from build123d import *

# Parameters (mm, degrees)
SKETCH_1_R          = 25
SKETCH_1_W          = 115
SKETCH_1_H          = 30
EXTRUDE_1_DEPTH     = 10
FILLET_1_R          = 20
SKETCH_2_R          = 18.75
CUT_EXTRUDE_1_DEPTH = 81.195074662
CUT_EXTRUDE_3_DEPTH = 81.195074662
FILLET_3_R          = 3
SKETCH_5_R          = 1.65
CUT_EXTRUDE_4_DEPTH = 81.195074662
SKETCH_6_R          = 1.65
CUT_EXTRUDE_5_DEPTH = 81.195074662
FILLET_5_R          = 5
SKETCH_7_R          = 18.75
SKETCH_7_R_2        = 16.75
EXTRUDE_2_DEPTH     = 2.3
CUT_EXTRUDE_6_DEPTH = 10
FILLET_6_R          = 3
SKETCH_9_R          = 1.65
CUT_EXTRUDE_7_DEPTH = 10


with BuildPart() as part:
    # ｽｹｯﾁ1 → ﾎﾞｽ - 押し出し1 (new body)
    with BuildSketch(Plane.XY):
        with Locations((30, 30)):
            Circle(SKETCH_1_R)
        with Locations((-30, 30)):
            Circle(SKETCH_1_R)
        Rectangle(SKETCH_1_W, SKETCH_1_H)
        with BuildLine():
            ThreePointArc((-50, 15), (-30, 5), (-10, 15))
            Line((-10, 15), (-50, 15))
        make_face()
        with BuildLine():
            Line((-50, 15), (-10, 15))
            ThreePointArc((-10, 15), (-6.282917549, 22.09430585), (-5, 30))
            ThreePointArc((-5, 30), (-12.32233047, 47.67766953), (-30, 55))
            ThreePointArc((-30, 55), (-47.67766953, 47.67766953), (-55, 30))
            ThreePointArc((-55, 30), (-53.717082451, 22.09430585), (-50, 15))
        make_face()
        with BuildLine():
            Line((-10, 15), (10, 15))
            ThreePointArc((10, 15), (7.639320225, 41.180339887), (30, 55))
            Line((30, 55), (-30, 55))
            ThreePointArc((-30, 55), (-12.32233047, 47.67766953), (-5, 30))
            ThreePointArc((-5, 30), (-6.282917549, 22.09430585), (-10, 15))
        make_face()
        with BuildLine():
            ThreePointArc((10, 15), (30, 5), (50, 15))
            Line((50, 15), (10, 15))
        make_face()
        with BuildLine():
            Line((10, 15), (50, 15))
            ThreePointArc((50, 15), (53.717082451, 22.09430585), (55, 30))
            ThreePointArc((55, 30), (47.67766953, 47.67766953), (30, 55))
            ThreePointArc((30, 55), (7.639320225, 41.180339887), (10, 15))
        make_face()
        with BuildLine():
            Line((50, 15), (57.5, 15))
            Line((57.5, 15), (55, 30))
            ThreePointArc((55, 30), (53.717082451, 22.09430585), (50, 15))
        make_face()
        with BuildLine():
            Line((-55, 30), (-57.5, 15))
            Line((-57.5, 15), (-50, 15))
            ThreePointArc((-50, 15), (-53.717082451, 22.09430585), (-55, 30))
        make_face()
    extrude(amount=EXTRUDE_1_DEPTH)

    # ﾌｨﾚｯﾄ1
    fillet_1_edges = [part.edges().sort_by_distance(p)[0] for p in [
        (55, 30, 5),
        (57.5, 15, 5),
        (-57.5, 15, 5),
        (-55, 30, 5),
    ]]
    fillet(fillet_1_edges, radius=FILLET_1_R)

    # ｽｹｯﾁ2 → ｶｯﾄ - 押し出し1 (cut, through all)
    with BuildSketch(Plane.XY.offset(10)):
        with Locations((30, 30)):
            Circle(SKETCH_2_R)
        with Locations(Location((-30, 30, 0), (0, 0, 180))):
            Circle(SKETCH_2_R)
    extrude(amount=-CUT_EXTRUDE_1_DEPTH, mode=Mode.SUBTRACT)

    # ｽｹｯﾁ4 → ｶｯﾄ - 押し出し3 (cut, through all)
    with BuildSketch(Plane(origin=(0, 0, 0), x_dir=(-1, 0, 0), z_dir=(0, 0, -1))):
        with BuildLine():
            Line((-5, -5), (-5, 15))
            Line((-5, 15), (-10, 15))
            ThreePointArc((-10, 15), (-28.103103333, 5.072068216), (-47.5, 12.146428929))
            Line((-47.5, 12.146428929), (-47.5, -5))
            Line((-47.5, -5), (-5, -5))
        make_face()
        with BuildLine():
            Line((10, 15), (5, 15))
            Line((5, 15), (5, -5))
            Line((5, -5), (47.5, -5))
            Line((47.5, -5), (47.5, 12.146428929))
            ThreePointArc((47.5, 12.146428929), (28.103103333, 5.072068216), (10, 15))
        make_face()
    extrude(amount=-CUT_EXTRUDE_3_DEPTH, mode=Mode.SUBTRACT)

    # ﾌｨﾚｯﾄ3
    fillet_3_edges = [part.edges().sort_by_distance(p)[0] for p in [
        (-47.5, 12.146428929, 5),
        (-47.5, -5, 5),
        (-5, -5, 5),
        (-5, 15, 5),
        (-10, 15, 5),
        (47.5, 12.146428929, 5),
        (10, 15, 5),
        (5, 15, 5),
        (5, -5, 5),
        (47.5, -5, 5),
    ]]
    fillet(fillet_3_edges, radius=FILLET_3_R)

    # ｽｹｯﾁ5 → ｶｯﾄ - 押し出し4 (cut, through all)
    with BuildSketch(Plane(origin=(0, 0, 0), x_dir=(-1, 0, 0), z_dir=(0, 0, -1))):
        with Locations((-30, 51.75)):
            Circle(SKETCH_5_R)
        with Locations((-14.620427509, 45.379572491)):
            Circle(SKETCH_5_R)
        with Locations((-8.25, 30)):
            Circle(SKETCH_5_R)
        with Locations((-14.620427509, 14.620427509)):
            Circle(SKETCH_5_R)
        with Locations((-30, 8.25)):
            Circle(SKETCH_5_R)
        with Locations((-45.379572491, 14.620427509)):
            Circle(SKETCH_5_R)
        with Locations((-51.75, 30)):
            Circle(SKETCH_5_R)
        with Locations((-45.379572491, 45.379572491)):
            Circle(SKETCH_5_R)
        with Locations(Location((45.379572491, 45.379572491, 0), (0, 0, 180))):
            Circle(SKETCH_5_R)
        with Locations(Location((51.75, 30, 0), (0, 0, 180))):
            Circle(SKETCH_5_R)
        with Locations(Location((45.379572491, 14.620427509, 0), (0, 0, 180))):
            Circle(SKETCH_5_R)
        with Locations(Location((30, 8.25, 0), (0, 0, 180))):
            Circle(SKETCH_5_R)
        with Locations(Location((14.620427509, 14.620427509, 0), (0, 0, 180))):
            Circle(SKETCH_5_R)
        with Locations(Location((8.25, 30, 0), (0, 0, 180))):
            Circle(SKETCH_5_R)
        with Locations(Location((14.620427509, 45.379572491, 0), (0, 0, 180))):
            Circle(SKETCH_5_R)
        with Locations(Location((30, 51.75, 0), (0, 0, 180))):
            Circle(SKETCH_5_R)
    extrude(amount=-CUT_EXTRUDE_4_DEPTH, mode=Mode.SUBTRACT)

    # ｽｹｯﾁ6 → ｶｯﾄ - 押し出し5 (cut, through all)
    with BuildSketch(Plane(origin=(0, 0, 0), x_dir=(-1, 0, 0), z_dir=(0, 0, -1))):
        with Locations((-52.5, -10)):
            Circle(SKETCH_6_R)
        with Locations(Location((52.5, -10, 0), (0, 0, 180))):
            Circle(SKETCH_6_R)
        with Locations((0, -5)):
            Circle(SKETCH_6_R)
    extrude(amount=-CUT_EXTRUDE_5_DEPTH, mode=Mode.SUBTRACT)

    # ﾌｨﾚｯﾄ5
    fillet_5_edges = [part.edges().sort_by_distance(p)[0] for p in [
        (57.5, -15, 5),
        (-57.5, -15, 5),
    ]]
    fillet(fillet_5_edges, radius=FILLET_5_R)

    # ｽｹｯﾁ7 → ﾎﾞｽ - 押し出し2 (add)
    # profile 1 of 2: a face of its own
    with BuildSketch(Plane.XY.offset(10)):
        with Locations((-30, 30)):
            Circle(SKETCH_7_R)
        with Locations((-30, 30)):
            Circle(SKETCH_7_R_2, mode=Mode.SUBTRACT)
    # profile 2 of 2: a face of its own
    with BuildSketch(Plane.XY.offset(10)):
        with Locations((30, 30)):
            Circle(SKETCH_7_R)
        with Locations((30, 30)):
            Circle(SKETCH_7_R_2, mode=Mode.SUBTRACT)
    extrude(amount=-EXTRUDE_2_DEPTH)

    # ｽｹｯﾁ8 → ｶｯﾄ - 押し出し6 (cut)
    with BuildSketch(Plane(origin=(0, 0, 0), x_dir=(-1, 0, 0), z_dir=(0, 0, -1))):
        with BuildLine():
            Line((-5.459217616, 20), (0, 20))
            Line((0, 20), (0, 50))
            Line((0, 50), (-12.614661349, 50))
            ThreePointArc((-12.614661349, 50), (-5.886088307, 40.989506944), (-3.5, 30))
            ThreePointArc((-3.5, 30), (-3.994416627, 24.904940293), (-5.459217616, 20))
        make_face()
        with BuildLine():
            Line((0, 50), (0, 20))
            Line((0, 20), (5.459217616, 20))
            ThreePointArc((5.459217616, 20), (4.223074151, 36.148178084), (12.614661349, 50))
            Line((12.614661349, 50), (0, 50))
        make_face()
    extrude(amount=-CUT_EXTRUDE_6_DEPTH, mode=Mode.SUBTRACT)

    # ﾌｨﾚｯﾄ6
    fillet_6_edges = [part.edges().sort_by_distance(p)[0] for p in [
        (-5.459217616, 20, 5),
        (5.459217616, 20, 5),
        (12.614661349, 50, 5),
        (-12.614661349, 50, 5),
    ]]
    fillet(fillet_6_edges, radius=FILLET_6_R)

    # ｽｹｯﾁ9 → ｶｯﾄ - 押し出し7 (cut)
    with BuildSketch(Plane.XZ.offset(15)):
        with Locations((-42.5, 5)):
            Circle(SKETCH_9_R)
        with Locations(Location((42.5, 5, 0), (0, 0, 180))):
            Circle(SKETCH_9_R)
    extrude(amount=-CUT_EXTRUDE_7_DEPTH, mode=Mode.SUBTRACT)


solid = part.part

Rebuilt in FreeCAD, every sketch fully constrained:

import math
import FreeCAD as App
import Part
import Sketcher

V = App.Vector
Q = App.Units.Quantity


def edges_at(feature, points):
    """Names of the edges that pass closest to the given points."""
    edges = feature.Shape.Edges
    near = lambda p: min(range(len(edges)), key=lambda i: edges[i].distToShape(Part.Vertex(*p))[0])
    return sorted({f"Edge{near(p) + 1}" for p in points})

doc = App.newDocument("Part")
body = doc.addObject("PartDesign::Body", "Body")

sketch1 = body.newObject("Sketcher::SketchObject", "Sketch")
sketch1.AttachmentSupport = (doc.getObject("XY_Plane"), [""])
sketch1.MapMode = "FlatFace"
sketch1.addGeometry([
    Part.ArcOfCircle(Part.Circle(V(30, 30, 0), V(0, 0, 1), 25), math.radians(0), math.radians(90)),
    Part.LineSegment(V(30, 55, 0), V(-30, 55, 0)),
    Part.ArcOfCircle(Part.Circle(V(-30, 30, 0), V(0, 0, 1), 25), math.radians(90), math.radians(180)),
    Part.LineSegment(V(-55, 30, 0), V(-58, 15, 0)),
    Part.LineSegment(V(-58, 15, 0), V(-58, -15, 0)),
    Part.LineSegment(V(-58, -15, 0), V(58, -15, 0)),
    Part.LineSegment(V(58, -15, 0), V(58, 15, 0)),
    Part.LineSegment(V(58, 15, 0), V(55, 30, 0)),
], False)
sketch1.addConstraint([
    Sketcher.Constraint("Tangent", 0, 2, 1, 1),
    Sketcher.Constraint("Tangent", 1, 2, 2, 1),
    Sketcher.Constraint("Coincident", 2, 2, 3, 1),
    Sketcher.Constraint("Coincident", 3, 2, 4, 1),
    Sketcher.Constraint("Coincident", 4, 2, 5, 1),
    Sketcher.Constraint("Coincident", 5, 2, 6, 1),
    Sketcher.Constraint("Coincident", 6, 2, 7, 1),
    Sketcher.Constraint("Coincident", 7, 2, 0, 1),
    Sketcher.Constraint("Horizontal", 1),
    Sketcher.Constraint("Vertical", 4),
    Sketcher.Constraint("Horizontal", 5),
    Sketcher.Constraint("Vertical", 6),
    Sketcher.Constraint("Equal", 0, 2),
    Sketcher.Constraint("Symmetric", 3, 2, 5, 2, -1, 1),
    Sketcher.Constraint("Symmetric", 2, 2, 7, 2, -2),
    Sketcher.Constraint("Horizontal", 0, 3, 2, 2),
    Sketcher.Constraint("Horizontal", 3, 2, 6, 2),
    Sketcher.Constraint("Radius", 0, Q("25 mm")),
    Sketcher.Constraint("DistanceX", 1, 2, 1, 1, Q("60 mm")),
    Sketcher.Constraint("DistanceX", 5, 1, 5, 2, Q("115 mm")),
    Sketcher.Constraint("DistanceY", 4, 2, 4, 1, Q("30 mm")),
    Sketcher.Constraint("DistanceY", -1, 1, 0, 3, Q("30 mm")),
])
pad1 = body.newObject("PartDesign::Pad", "Pad")
pad1.Profile = sketch1
pad1.Length = 10
doc.recompute()

fillet = body.newObject("PartDesign::Fillet", "Fillet")
fillet.Base = (pad1, edges_at(pad1, [
    (55, 30, 5),
    (57.5, 15, 5),
    (-57.5, 15, 5),
    (-55, 30, 5),
]))
fillet.Radius = 20

sketch2 = body.newObject("Sketcher::SketchObject", "Sketch001")
sketch2.AttachmentSupport = (doc.getObject("XY_Plane"), [""])
sketch2.MapMode = "FlatFace"
sketch2.AttachmentOffset = App.Placement(V(0, 0, 10), App.Rotation())
sketch2.addGeometry([
    Part.Circle(V(30, 30, 0), V(0, 0, 1), 19),
    Part.Circle(V(-30, 30, 0), V(0, 0, 1), 19),
], False)
sketch2.addConstraint([
    Sketcher.Constraint("Equal", 0, 1),
    Sketcher.Constraint("Symmetric", 0, 3, 1, 3, -2),
    Sketcher.Constraint("Diameter", 0, Q("37.5 mm")),
    Sketcher.Constraint("DistanceX", -1, 1, 0, 3, Q("30 mm")),
    Sketcher.Constraint("DistanceY", -1, 1, 0, 3, Q("30 mm")),
])
pocket1 = body.newObject("PartDesign::Pocket", "Pocket")
pocket1.Profile = sketch2
pocket1.Type = "ThroughAll"

sketch3 = body.newObject("Sketcher::SketchObject", "Sketch002")
sketch3.AttachmentSupport = (doc.getObject("XY_Plane"), [""])
sketch3.MapMode = "FlatFace"
sketch3.addGeometry([
    Part.LineSegment(V(5, -5, 0), V(5, 15, 0)),
    Part.LineSegment(V(5, 15, 0), V(10, 15, 0)),
    Part.ArcOfCircle(Part.Circle(V(30, 30, 0), V(0, 0, 1), 25), math.radians(-143), math.radians(-46)),
    Part.LineSegment(V(48, 12, 0), V(48, -5, 0)),
    Part.LineSegment(V(48, -5, 0), V(5, -5, 0)),
    Part.LineSegment(V(-10, 15, 0), V(-5, 15, 0)),
    Part.LineSegment(V(-5, 15, 0), V(-5, -5, 0)),
    Part.LineSegment(V(-5, -5, 0), V(-48, -5, 0)),
    Part.LineSegment(V(-48, -5, 0), V(-48, 12, 0)),
    Part.ArcOfCircle(Part.Circle(V(-30, 30, 0), V(0, 0, 1), 25), math.radians(-134), math.radians(-37)),
], False)
sketch3.addConstraint([
    Sketcher.Constraint("Coincident", 0, 2, 1, 1),
    Sketcher.Constraint("Coincident", 1, 2, 2, 1),
    Sketcher.Constraint("Coincident", 2, 2, 3, 1),
    Sketcher.Constraint("Coincident", 3, 2, 4, 1),
    Sketcher.Constraint("Coincident", 4, 2, 0, 1),
    Sketcher.Constraint("Coincident", 5, 2, 6, 1),
    Sketcher.Constraint("Coincident", 6, 2, 7, 1),
    Sketcher.Constraint("Coincident", 7, 2, 8, 1),
    Sketcher.Constraint("Coincident", 8, 2, 9, 1),
    Sketcher.Constraint("Coincident", 9, 2, 5, 1),
    Sketcher.Constraint("Vertical", 0),
    Sketcher.Constraint("Horizontal", 1),
    Sketcher.Constraint("Vertical", 3),
    Sketcher.Constraint("Horizontal", 4),
    Sketcher.Constraint("Horizontal", 5),
    Sketcher.Constraint("Vertical", 6),
    Sketcher.Constraint("Horizontal", 7),
    Sketcher.Constraint("Vertical", 8),
    Sketcher.Constraint("Equal", 2, 9),
    Sketcher.Constraint("Symmetric", 2, 3, 9, 3, -2),
    Sketcher.Constraint("Symmetric", 0, 2, 5, 2, -2),
    Sketcher.Constraint("Symmetric", 3, 2, 7, 2, -2),
    Sketcher.Constraint("Radius", 2, Q("25 mm")),
    Sketcher.Constraint("DistanceX", 1, 1, 1, 2, Q("5 mm")),
    Sketcher.Constraint("DistanceY", 0, 1, 0, 2, Q("20 mm")),
    Sketcher.Constraint("DistanceX", 4, 2, 4, 1, Q("42.5 mm")),
    Sketcher.Constraint("DistanceX", -1, 1, 2, 3, Q("30 mm")),
    Sketcher.Constraint("DistanceY", -1, 1, 2, 3, Q("30 mm")),
    Sketcher.Constraint("DistanceX", -1, 1, 0, 2, Q("5 mm")),
])
pocket2 = body.newObject("PartDesign::Pocket", "Pocket001")
pocket2.Profile = sketch3
pocket2.Type = "ThroughAll"
pocket2.Reversed = True
doc.recompute()

fillet2 = body.newObject("PartDesign::Fillet", "Fillet001")
fillet2.Base = (pocket2, edges_at(pocket2, [
    (-47.5, 12.146, 5),
    (-47.5, -5, 5),
    (-5, -5, 5),
    (-5, 15, 5),
    (-10, 15, 5),
    (47.5, 12.146, 5),
    (10, 15, 5),
    (5, 15, 5),
    (5, -5, 5),
    (47.5, -5, 5),
]))
fillet2.Radius = 3

sketch4 = body.newObject("Sketcher::SketchObject", "Sketch003")
sketch4.AttachmentSupport = (doc.getObject("XY_Plane"), [""])
sketch4.MapMode = "FlatFace"
sketch4.addGeometry([
    Part.Circle(V(30, 51.8, 0), V(0, 0, 1), 1.6),
    Part.Circle(V(14.6, 45.4, 0), V(0, 0, 1), 1.6),
    Part.Circle(V(8.2, 30, 0), V(0, 0, 1), 1.6),
    Part.Circle(V(14.6, 14.6, 0), V(0, 0, 1), 1.6),
    Part.Circle(V(30, 8.2, 0), V(0, 0, 1), 1.6),
    Part.Circle(V(45.4, 14.6, 0), V(0, 0, 1), 1.6),
    Part.Circle(V(51.8, 30, 0), V(0, 0, 1), 1.6),
    Part.Circle(V(45.4, 45.4, 0), V(0, 0, 1), 1.6),
    Part.Circle(V(-45.4, 45.4, 0), V(0, 0, 1), 1.6),
    Part.Circle(V(-51.8, 30, 0), V(0, 0, 1), 1.6),
    Part.Circle(V(-45.4, 14.6, 0), V(0, 0, 1), 1.6),
    Part.Circle(V(-30, 8.2, 0), V(0, 0, 1), 1.6),
    Part.Circle(V(-14.6, 14.6, 0), V(0, 0, 1), 1.6),
    Part.Circle(V(-8.2, 30, 0), V(0, 0, 1), 1.6),
    Part.Circle(V(-14.6, 45.4, 0), V(0, 0, 1), 1.6),
    Part.Circle(V(-30, 51.8, 0), V(0, 0, 1), 1.6),
], False)
sketch4.addConstraint([
    Sketcher.Constraint("Equal", 0, 1),
    Sketcher.Constraint("Equal", 1, 2),
    Sketcher.Constraint("Equal", 2, 3),
    Sketcher.Constraint("Equal", 3, 4),
    Sketcher.Constraint("Equal", 4, 5),
    Sketcher.Constraint("Equal", 5, 6),
    Sketcher.Constraint("Equal", 6, 7),
    Sketcher.Constraint("Equal", 7, 8),
    Sketcher.Constraint("Equal", 8, 9),
    Sketcher.Constraint("Equal", 9, 10),
    Sketcher.Constraint("Equal", 10, 11),
    Sketcher.Constraint("Equal", 11, 12),
    Sketcher.Constraint("Equal", 12, 13),
    Sketcher.Constraint("Equal", 13, 14),
    Sketcher.Constraint("Equal", 14, 15),
    Sketcher.Constraint("Symmetric", 7, 3, 8, 3, -2),
    Sketcher.Constraint("Symmetric", 6, 3, 9, 3, -2),
    Sketcher.Constraint("Symmetric", 5, 3, 10, 3, -2),
    Sketcher.Constraint("Symmetric", 4, 3, 11, 3, -2),
    Sketcher.Constraint("Symmetric", 3, 3, 12, 3, -2),
    Sketcher.Constraint("Symmetric", 2, 3, 13, 3, -2),
    Sketcher.Constraint("Symmetric", 1, 3, 14, 3, -2),
    Sketcher.Constraint("Symmetric", 0, 3, 15, 3, -2),
    Sketcher.Constraint("Horizontal", 3, 3, 5, 3),
    Sketcher.Constraint("Horizontal", 2, 3, 6, 3),
    Sketcher.Constraint("Horizontal", 1, 3, 7, 3),
    Sketcher.Constraint("Vertical", 1, 3, 3, 3),
    Sketcher.Constraint("Vertical", 0, 3, 4, 3),
    Sketcher.Constraint("Vertical", 5, 3, 7, 3),
    Sketcher.Constraint("Diameter", 0, Q("3.3 mm")),
    Sketcher.Constraint("DistanceX", -1, 1, 0, 3, Q("30 mm")),
    Sketcher.Constraint("DistanceY", -1, 1, 2, 3, Q("30 mm")),
    Sketcher.Constraint("DistanceX", 8, 3, 1, 3, Q("60 mm")),
    Sketcher.Constraint("DistanceX", 9, 3, 2, 3, Q("60 mm")),
    Sketcher.Constraint("DistanceY", 4, 3, 0, 3, Q("43.5 mm")),
    Sketcher.Constraint("DistanceX", 13, 3, 2, 3, Q("16.5 mm")),
    Sketcher.Constraint("DistanceY", -1, 1, 0, 3, Q("51.75 mm")),
    Sketcher.Constraint("DistanceX", -1, 1, 1, 3, Q("14.620428 mm")),
    Sketcher.Constraint("DistanceY", -1, 1, 1, 3, Q("45.379572 mm")),
    Sketcher.Constraint("DistanceY", -1, 1, 3, 3, Q("14.620428 mm")),
])
pocket3 = body.newObject("PartDesign::Pocket", "Pocket002")
pocket3.Profile = sketch4
pocket3.Type = "ThroughAll"
pocket3.Reversed = True

sketch5 = body.newObject("Sketcher::SketchObject", "Sketch004")
sketch5.AttachmentSupport = (doc.getObject("XY_Plane"), [""])
sketch5.MapMode = "FlatFace"
sketch5.addGeometry([
    Part.Circle(V(52.5, -10, 0), V(0, 0, 1), 1.6),
    Part.Circle(V(-52.5, -10, 0), V(0, 0, 1), 1.6),
    Part.Circle(V(0, -5, 0), V(0, 0, 1), 1.6),
], False)
sketch5.addConstraint([
    Sketcher.Constraint("Equal", 0, 1),
    Sketcher.Constraint("Equal", 1, 2),
    Sketcher.Constraint("Symmetric", 0, 3, 1, 3, -2),
    Sketcher.Constraint("PointOnObject", 2, 3, -2),
    Sketcher.Constraint("Diameter", 0, Q("3.3 mm")),
    Sketcher.Constraint("DistanceY", 0, 3, -1, 1, Q("10 mm")),
    Sketcher.Constraint("DistanceY", 2, 3, -1, 1, Q("5 mm")),
    Sketcher.Constraint("DistanceX", 1, 3, 0, 3, Q("105 mm")),
])
pocket4 = body.newObject("PartDesign::Pocket", "Pocket003")
pocket4.Profile = sketch5
pocket4.Type = "ThroughAll"
pocket4.Reversed = True
doc.recompute()

fillet3 = body.newObject("PartDesign::Fillet", "Fillet002")
fillet3.Base = (pocket4, edges_at(pocket4, [(57.5, -15, 5), (-57.5, -15, 5)]))
fillet3.Radius = 5

sketch6 = body.newObject("Sketcher::SketchObject", "Sketch005")
sketch6.AttachmentSupport = (doc.getObject("XY_Plane"), [""])
sketch6.MapMode = "FlatFace"
sketch6.AttachmentOffset = App.Placement(V(0, 0, 10), App.Rotation())
sketch6.addGeometry([
    Part.Circle(V(-30, 30, 0), V(0, 0, 1), 19),
    Part.Circle(V(-30, 30, 0), V(0, 0, 1), 17),
    Part.Circle(V(30, 30, 0), V(0, 0, 1), 19),
    Part.Circle(V(30, 30, 0), V(0, 0, 1), 17),
], False)
sketch6.addConstraint([
    Sketcher.Constraint("Coincident", 1, 3, 0, 3),
    Sketcher.Constraint("Coincident", 3, 3, 2, 3),
    Sketcher.Constraint("Equal", 0, 2),
    Sketcher.Constraint("Equal", 1, 3),
    Sketcher.Constraint("Symmetric", 0, 3, 2, 3, -2),
    Sketcher.Constraint("Diameter", 0, Q("37.5 mm")),
    Sketcher.Constraint("Diameter", 1, Q("33.5 mm")),
    Sketcher.Constraint("DistanceX", 0, 3, -1, 1, Q("30 mm")),
    Sketcher.Constraint("DistanceY", -1, 1, 0, 3, Q("30 mm")),
])
pad2 = body.newObject("PartDesign::Pad", "Pad001")
pad2.Profile = sketch6
pad2.Length = 2.3
pad2.Reversed = True

sketch7 = body.newObject("Sketcher::SketchObject", "Sketch006")
sketch7.AttachmentSupport = (doc.getObject("XY_Plane"), [""])
sketch7.MapMode = "FlatFace"
sketch7.addGeometry([
    Part.LineSegment(V(5, 20, 0), V(-5, 20, 0)),
    Part.ArcOfCircle(Part.Circle(V(-30, 30, 0), V(0, 0, 1), 27), math.radians(-22), math.radians(49)),
    Part.LineSegment(V(-13, 50, 0), V(13, 50, 0)),
    Part.ArcOfCircle(Part.Circle(V(30, 30, 0), V(0, 0, 1), 26), math.radians(131), math.radians(180)),
    Part.ArcOfCircle(Part.Circle(V(30, 30, 0), V(0, 0, 1), 27), math.radians(-180), math.radians(-158)),
], False)
sketch7.addConstraint([
    Sketcher.Constraint("Coincident", 0, 2, 1, 1),
    Sketcher.Constraint("Coincident", 1, 2, 2, 1),
    Sketcher.Constraint("Coincident", 2, 2, 3, 1),
    Sketcher.Constraint("Tangent", 3, 2, 4, 1),
    Sketcher.Constraint("Coincident", 4, 2, 0, 1),
    Sketcher.Constraint("Horizontal", 0),
    Sketcher.Constraint("Horizontal", 2),
    Sketcher.Constraint("Equal", 1, 3),
    Sketcher.Constraint("Equal", 3, 4),
    Sketcher.Constraint("Symmetric", 1, 3, 3, 3, -2),
    Sketcher.Constraint("Horizontal", 4, 3, 3, 2),
    Sketcher.Constraint("Radius", 1, Q("26.5 mm")),
    Sketcher.Constraint("DistanceX", 1, 3, -1, 1, Q("30 mm")),
    Sketcher.Constraint("DistanceY", -1, 1, 1, 3, Q("30 mm")),
    Sketcher.Constraint("DistanceY", -1, 1, 0, 2, Q("20 mm")),
    Sketcher.Constraint("DistanceY", -1, 1, 1, 2, Q("50 mm")),
])
pocket5 = body.newObject("PartDesign::Pocket", "Pocket004")
pocket5.Profile = sketch7
pocket5.Length = 10
pocket5.Reversed = True
doc.recompute()

fillet4 = body.newObject("PartDesign::Fillet", "Fillet003")
fillet4.Base = (pocket5, edges_at(pocket5, [
    (-5.459, 20, 5),
    (5.459, 20, 5),
    (12.615, 50, 5),
    (-12.615, 50, 5),
]))
fillet4.Radius = 3

sketch8 = body.newObject("Sketcher::SketchObject", "Sketch007")
sketch8.AttachmentSupport = (doc.getObject("XZ_Plane"), [""])
sketch8.MapMode = "FlatFace"
sketch8.AttachmentOffset = App.Placement(V(0, 0, 15), App.Rotation())
sketch8.addGeometry([
    Part.Circle(V(-42.5, 5, 0), V(0, 0, 1), 1.6),
    Part.Circle(V(42.5, 5, 0), V(0, 0, 1), 1.6),
], False)
sketch8.addConstraint([
    Sketcher.Constraint("Equal", 0, 1),
    Sketcher.Constraint("Symmetric", 0, 3, 1, 3, -2),
    Sketcher.Constraint("Diameter", 0, Q("3.3 mm")),
    Sketcher.Constraint("DistanceY", -1, 1, 0, 3, Q("5 mm")),
    Sketcher.Constraint("DistanceX", 0, 3, 1, 3, Q("85 mm")),
])
pocket6 = body.newObject("PartDesign::Pocket", "Pocket005")
pocket6.Profile = sketch8
pocket6.Length = 10

doc.recompute()
